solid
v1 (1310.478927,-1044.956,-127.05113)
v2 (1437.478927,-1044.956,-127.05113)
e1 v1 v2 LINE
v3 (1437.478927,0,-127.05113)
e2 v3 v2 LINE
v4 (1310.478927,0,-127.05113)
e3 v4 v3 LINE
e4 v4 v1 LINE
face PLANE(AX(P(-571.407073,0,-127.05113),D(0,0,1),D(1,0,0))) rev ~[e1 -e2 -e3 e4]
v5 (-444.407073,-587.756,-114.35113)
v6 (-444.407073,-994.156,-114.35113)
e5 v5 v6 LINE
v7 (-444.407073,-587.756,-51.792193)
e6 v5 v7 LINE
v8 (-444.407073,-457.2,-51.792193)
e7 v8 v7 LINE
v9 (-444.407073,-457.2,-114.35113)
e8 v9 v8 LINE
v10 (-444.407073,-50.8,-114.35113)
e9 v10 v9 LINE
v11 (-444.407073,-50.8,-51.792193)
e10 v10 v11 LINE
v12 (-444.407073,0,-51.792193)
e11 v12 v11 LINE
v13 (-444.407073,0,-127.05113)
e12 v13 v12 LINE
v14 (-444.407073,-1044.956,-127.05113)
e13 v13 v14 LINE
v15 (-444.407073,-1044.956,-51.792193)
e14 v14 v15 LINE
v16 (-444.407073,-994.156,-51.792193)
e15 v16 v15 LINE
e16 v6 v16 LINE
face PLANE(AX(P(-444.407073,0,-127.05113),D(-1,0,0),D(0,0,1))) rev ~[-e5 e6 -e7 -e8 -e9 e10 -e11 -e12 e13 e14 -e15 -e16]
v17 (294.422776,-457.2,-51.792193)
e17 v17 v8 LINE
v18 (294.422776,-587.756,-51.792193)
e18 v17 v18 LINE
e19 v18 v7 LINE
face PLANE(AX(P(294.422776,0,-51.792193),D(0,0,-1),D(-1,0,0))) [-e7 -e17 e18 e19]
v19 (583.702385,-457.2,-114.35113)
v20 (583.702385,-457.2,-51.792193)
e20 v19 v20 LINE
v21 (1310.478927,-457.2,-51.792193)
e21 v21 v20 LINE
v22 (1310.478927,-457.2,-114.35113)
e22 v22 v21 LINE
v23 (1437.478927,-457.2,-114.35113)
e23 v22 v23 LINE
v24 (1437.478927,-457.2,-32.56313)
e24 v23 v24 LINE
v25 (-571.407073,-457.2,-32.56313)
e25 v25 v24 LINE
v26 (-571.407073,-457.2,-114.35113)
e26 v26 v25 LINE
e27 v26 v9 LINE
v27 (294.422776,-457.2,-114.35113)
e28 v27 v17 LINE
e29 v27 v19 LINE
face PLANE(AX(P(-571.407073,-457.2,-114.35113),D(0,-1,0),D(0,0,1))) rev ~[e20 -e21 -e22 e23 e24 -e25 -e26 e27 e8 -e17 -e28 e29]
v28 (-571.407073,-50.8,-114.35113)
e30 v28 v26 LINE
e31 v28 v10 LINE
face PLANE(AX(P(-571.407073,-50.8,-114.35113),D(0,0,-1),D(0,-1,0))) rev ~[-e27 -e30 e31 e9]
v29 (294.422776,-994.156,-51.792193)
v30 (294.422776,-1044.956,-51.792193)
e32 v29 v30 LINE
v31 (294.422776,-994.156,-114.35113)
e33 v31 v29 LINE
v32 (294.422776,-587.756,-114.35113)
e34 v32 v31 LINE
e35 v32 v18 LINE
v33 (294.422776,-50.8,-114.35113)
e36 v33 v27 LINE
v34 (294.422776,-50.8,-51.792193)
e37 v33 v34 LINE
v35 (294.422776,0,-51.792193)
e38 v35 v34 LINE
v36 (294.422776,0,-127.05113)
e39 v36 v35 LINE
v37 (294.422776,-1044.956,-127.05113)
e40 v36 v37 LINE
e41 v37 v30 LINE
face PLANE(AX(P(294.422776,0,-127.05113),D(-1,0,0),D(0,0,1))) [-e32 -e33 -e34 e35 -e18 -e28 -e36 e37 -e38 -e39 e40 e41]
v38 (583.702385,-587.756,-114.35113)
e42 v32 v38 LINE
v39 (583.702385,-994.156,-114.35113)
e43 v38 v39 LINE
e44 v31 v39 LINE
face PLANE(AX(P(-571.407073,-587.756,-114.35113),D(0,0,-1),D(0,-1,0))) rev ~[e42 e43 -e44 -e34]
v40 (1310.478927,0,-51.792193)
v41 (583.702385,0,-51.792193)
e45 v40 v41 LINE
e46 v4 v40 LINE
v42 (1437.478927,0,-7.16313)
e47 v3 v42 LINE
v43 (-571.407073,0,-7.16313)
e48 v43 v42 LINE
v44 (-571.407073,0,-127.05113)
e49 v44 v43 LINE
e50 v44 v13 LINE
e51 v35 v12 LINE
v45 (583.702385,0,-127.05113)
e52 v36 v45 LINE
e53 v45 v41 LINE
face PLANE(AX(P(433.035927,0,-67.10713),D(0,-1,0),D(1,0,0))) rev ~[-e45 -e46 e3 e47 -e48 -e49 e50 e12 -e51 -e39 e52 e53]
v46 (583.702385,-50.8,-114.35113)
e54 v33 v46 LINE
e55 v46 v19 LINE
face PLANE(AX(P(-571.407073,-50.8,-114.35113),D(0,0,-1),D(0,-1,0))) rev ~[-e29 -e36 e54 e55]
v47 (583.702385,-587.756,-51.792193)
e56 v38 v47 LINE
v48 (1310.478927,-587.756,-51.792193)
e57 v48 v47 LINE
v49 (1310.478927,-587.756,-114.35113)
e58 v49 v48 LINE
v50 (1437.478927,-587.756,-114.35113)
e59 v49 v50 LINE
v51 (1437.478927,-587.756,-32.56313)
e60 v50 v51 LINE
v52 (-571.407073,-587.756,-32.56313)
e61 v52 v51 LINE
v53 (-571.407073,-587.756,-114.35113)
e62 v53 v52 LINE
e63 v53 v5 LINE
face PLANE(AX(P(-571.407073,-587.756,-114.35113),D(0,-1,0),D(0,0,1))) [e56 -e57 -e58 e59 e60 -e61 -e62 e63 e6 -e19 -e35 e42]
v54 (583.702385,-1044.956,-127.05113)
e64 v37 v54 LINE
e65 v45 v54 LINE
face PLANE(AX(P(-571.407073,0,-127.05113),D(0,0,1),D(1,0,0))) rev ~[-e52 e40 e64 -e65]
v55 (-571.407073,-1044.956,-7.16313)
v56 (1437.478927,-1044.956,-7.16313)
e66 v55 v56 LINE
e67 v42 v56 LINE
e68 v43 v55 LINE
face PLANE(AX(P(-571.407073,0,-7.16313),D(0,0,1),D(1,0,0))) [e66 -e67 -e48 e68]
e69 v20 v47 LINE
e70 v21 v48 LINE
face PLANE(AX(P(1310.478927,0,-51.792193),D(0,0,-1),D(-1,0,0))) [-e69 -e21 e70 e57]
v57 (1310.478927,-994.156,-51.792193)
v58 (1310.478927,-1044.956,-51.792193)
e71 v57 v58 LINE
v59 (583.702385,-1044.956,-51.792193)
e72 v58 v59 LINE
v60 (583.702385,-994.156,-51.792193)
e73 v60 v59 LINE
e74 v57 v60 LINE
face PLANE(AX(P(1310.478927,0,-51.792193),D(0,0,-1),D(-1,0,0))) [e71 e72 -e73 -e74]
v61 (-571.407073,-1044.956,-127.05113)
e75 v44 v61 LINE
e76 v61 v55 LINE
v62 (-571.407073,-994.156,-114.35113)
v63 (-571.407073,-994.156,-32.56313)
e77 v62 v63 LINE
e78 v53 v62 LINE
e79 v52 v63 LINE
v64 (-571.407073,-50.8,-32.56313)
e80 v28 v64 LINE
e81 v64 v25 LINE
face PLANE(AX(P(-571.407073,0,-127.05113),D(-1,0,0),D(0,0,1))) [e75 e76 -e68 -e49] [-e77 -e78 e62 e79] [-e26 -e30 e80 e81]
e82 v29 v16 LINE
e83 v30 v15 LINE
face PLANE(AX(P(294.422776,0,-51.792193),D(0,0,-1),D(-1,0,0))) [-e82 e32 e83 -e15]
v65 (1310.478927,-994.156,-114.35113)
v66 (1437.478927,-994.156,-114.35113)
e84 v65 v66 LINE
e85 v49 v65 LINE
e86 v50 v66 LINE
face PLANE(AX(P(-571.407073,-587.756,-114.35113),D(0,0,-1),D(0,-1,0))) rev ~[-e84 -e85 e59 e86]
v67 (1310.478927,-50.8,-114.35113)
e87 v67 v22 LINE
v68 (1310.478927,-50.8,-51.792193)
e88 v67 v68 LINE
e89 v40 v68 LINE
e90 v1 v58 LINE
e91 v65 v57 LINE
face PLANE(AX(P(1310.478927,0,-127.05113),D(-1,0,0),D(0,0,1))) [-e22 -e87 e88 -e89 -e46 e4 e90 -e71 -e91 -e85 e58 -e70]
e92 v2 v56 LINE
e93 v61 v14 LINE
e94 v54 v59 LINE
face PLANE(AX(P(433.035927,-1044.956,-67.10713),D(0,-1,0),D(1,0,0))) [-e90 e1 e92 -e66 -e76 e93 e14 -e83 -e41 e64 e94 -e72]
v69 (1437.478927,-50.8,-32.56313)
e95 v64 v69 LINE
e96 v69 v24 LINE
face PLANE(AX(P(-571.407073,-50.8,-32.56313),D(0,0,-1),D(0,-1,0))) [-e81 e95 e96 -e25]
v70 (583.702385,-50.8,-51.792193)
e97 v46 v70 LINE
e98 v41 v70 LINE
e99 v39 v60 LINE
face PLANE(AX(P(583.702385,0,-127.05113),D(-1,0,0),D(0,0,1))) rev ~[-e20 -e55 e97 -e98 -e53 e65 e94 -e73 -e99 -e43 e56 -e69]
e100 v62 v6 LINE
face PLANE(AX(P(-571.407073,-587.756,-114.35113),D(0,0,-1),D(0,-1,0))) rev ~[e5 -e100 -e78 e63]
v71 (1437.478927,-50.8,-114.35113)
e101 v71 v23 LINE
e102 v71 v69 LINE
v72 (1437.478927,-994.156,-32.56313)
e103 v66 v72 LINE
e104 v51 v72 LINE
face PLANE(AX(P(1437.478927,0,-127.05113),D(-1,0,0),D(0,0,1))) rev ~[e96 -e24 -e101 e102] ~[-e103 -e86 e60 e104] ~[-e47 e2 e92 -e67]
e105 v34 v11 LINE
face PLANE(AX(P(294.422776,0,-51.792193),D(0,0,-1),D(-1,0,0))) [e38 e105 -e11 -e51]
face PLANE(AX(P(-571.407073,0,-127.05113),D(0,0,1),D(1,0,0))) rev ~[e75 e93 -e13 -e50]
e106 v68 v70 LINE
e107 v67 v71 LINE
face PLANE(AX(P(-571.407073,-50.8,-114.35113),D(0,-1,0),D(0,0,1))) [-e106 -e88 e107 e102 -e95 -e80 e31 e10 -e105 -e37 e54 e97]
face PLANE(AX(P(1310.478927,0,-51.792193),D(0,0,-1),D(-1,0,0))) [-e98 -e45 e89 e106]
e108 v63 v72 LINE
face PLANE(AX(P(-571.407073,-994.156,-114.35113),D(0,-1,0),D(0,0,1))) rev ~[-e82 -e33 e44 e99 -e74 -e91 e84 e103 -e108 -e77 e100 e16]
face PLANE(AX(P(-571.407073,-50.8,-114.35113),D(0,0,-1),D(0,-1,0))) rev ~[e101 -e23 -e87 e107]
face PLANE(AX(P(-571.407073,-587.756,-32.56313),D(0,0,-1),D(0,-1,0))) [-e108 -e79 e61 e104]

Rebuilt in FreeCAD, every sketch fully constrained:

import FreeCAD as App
import Part
import Sketcher
Q = App.Units.Quantity


def add_polygon(sketch, points):
    """Adds a closed chain of lines whose ends are joined by coincident constraints."""
    first, n = sketch.GeometryCount, len(points)
    for a, b in zip(points, points[1:] + points[:1]):
        sketch.addGeometry(Part.LineSegment(App.Vector(*a, 0), App.Vector(*b, 0)), False)
    for i in range(n):
        sketch.addConstraint(Sketcher.Constraint("Coincident", first + i, 2, first + (i + 1) % n, 1))

doc = App.newDocument("Part")
params = doc.addObject("Spreadsheet::Sheet", "Params")
for row, (alias, value) in enumerate([
    ("sketch1_width", "79.09 in"),
    ("sketch1_height", "4.72 in"),
    ("pad1_length", "41.14 in"),
    ("pocket1_length", "41.14 in"),
    ("sketch3_width", "16 in"),
    ("sketch3_height", "3.22 in"),
    ("pocket2_length", "79.09 in"),
], start=1):
    params.set(f"A{row}", alias)
    params.set(f"B{row}", "=" + value)
    params.setAlias(f"B{row}", alias)

body = doc.addObject("PartDesign::Body", "Body")

sketch1 = doc.addObject("Sketcher::SketchObject", "Sketch")
body.addObject(sketch1)
sketch1.AttachmentSupport = (doc.XZ_Plane, [""])
sketch1.MapMode = "FlatFace"
add_polygon(sketch1, [(-571, -7), (-571, -127), (1437, -127), (1437, -7)])
sketch1.addConstraint([
    Sketcher.Constraint("Vertical", 0),
    Sketcher.Constraint("Horizontal", 1),
    Sketcher.Constraint("Vertical", 2),
    Sketcher.Constraint("Horizontal", 3),
    Sketcher.Constraint("DistanceX", 1, 1, 1, 2, Q("79.09 in")),
    Sketcher.Constraint("DistanceY", 0, 2, 0, 1, Q("4.72 in")),
    Sketcher.Constraint("DistanceY", 0, 2, -1, 1, Q("127.05113 mm")),
    Sketcher.Constraint("DistanceX", 0, 2, -1, 1, Q("571.407073 mm")),
])
sketch1.setExpression("Constraints[8]", "Params.sketch1_width")
sketch1.setExpression("Constraints[9]", "Params.sketch1_height")
pad1 = doc.addObject("PartDesign::Pad", "Pad")
body.addObject(pad1)
pad1.Profile = sketch1
pad1.setExpression("Length", "Params.pad1_length")

sketch2 = doc.addObject("Sketcher::SketchObject", "Sketch001")
body.addObject(sketch2)
sketch2.AttachmentSupport = (doc.XZ_Plane, [""])
sketch2.MapMode = "FlatFace"
add_polygon(sketch2, [(294, -52), (294, -127), (-444, -127), (-444, -52)])
add_polygon(sketch2, [(1310, -52), (1310, -127), (584, -127), (584, -52)])
sketch2.addConstraint([
    Sketcher.Constraint("Vertical", 0),
    Sketcher.Constraint("Horizontal", 1),
    Sketcher.Constraint("Vertical", 2),
    Sketcher.Constraint("Horizontal", 3),
    Sketcher.Constraint("Vertical", 4),
    Sketcher.Constraint("Horizontal", 5),
    Sketcher.Constraint("Vertical", 6),
    Sketcher.Constraint("Horizontal", 7),
    Sketcher.Constraint("Horizontal", 1, 2, 4, 2),
    Sketcher.Constraint("Horizontal", 3, 2, 6, 2),
    Sketcher.Constraint("DistanceX", 1, 2, 4, 2, Q("69.09 in")),
    Sketcher.Constraint("DistanceX", 1, 2, 1, 1, Q("738.829848 mm")),
    Sketcher.Constraint("DistanceX", 5, 2, 5, 1, Q("726.776542 mm")),
    Sketcher.Constraint("DistanceY", 0, 2, 0, 1, Q("75.258937 mm")),
    Sketcher.Constraint("DistanceY", 0, 2, -1, 1, Q("127.05113 mm")),
    Sketcher.Constraint("DistanceX", -1, 1, 0, 2, Q("294.422776 mm")),
])
pocket1 = doc.addObject("PartDesign::Pocket", "Pocket")
body.addObject(pocket1)
pocket1.Profile = sketch2
pocket1.setExpression("Length", "Params.pocket1_length")
pocket1.Reversed = True

sketch3 = doc.addObject("Sketcher::SketchObject", "Sketch002")
body.addObject(sketch3)
sketch3.AttachmentSupport = (doc.YZ_Plane, [""])
sketch3.MapMode = "FlatFace"
sketch3.AttachmentOffset = App.Placement(App.Vector(0, 0, -571.407073), App.Rotation())
add_polygon(sketch3, [(-51, -33), (-51, -114), (-457, -114), (-457, -33)])
add_polygon(sketch3, [(-588, -33), (-588, -114), (-994, -114), (-994, -33)])
sketch3.addConstraint([
    Sketcher.Constraint("Vertical", 0),
    Sketcher.Constraint("Horizontal", 1),
    Sketcher.Constraint("Vertical", 2),
    Sketcher.Constraint("Horizontal", 3),
    Sketcher.Constraint("Vertical", 4),
    Sketcher.Constraint("Horizontal", 5),
    Sketcher.Constraint("Vertical", 6),
    Sketcher.Constraint("Horizontal", 7),
    Sketcher.Constraint("Horizontal", 1, 2, 4, 2),
    Sketcher.Constraint("Horizontal", 3, 2, 6, 2),
    Sketcher.Constraint("Equal", 3, 5),
    Sketcher.Constraint("DistanceX", 1, 2, 1, 1, Q("16 in")),
    Sketcher.Constraint("DistanceX", 0, 2, -1, 1, Q("2 in")),
    Sketcher.Constraint("DistanceY", 0, 2, 0, 1, Q("3.22 in")),
    Sketcher.Constraint("DistanceX", 4, 2, -1, 1, Q("23.14 in")),
    Sketcher.Constraint("DistanceY", 0, 2, -1, 1, Q("114.35113 mm")),
])
sketch3.setExpression("Constraints[19]", "Params.sketch3_width")
sketch3.setExpression("Constraints[21]", "Params.sketch3_height")
pocket2 = doc.addObject("PartDesign::Pocket", "Pocket001")
body.addObject(pocket2)
pocket2.Profile = sketch3
pocket2.setExpression("Length", "Params.pocket2_length")
pocket2.Reversed = True

doc.recompute()
